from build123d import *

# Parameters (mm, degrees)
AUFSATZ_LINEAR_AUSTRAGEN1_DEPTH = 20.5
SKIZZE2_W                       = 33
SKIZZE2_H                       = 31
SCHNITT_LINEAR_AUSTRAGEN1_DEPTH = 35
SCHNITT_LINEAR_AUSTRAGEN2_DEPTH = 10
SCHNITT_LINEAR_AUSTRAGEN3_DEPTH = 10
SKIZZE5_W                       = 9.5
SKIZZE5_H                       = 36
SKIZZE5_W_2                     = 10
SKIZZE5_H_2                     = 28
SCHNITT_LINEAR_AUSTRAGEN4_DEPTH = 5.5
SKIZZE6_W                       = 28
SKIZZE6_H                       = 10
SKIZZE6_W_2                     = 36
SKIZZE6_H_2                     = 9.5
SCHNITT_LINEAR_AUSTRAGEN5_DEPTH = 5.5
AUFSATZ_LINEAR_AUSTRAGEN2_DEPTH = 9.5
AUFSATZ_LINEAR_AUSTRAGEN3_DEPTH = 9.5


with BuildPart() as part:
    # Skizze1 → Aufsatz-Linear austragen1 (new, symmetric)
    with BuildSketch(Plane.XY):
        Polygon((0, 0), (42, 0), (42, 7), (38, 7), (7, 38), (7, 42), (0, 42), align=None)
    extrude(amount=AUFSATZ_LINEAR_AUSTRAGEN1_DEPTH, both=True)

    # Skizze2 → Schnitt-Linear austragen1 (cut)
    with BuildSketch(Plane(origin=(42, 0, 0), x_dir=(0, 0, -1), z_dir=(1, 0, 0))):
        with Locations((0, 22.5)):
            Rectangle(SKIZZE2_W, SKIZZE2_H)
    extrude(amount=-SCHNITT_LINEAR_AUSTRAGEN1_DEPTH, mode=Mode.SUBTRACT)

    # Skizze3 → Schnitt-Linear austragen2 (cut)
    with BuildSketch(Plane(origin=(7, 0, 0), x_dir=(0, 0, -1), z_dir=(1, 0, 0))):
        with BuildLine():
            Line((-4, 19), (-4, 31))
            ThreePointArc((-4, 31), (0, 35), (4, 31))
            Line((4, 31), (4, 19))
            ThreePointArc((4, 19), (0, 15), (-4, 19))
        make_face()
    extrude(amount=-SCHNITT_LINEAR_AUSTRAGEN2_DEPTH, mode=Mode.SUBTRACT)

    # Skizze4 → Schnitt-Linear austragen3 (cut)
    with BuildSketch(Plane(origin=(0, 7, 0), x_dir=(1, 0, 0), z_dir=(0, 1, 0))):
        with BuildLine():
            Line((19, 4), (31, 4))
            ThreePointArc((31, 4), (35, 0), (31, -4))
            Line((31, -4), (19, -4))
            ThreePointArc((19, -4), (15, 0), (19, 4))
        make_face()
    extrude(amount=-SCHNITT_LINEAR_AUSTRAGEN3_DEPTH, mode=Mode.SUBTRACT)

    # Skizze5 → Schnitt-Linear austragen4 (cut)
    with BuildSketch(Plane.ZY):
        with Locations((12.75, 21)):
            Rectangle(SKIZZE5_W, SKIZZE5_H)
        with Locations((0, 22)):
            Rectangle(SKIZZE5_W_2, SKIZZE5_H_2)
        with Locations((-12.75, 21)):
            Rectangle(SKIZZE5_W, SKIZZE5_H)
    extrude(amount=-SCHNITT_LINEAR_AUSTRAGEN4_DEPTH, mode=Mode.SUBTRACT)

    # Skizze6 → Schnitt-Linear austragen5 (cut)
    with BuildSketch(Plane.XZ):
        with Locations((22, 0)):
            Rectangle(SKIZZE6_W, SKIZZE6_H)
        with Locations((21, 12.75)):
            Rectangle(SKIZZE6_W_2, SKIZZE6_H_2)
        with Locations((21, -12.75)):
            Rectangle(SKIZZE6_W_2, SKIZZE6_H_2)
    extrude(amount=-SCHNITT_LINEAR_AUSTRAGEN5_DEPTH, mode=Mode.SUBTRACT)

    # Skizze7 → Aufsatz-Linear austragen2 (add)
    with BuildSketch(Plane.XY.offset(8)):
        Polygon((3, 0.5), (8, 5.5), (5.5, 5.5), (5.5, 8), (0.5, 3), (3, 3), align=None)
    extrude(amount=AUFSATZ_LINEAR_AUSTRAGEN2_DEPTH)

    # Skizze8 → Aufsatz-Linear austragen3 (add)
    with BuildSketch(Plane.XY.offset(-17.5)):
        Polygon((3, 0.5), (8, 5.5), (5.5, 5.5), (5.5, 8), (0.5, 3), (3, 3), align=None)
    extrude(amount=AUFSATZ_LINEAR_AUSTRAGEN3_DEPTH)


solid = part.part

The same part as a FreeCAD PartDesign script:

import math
import FreeCAD as App
import Part
import Sketcher
from FreeCAD import Vector
Q = App.Units.Quantity


def add_polygon(sketch, points):
    """Adds a closed chain of lines whose ends are joined by coincident constraints."""
    first, n = sketch.GeometryCount, len(points)
    for a, b in zip(points, points[1:] + points[:1]):
        sketch.addGeometry(Part.LineSegment(App.Vector(*a, 0), App.Vector(*b, 0)), False)
    for i in range(n):
        sketch.addConstraint(Sketcher.Constraint("Coincident", first + i, 2, first + (i + 1) % n, 1))

doc = App.newDocument("Part")
body = doc.addObject("PartDesign::Body", "Body")

sketch1 = body.newObject("Sketcher::SketchObject", "Sketch")
sketch1.AttachmentSupport = (doc.getObject("XY_Plane"), [""])
sketch1.MapMode = "FlatFace"
add_polygon(sketch1, [(0, 0), (42, 0), (42, 7), (38, 7), (7, 38), (7, 42), (0, 42)])
sketch1.addConstraint(Sketcher.Constraint("Horizontal", 0))
sketch1.addConstraint(Sketcher.Constraint("Vertical", 1))
sketch1.addConstraint(Sketcher.Constraint("Horizontal", 2))
sketch1.addConstraint(Sketcher.Constraint("Vertical", 4))
sketch1.addConstraint(Sketcher.Constraint("Horizontal", 5))
sketch1.addConstraint(Sketcher.Constraint("Vertical", 6))
sketch1.addConstraint(Sketcher.Constraint("Coincident", 6, 2, -1, 1))
sketch1.addConstraint(Sketcher.Constraint("Equal", 5, 1))
sketch1.addConstraint(Sketcher.Constraint("Equal", 2, 4))
sketch1.addConstraint(Sketcher.Constraint("Equal", 0, 6))
sketch1.addConstraint(Sketcher.Constraint("DistanceX", 0, 1, 0, 2, 42.0))
sketch1.addConstraint(Sketcher.Constraint("DistanceX", 2, 2, 2, 1, 4.0))
sketch1.addConstraint(Sketcher.Constraint("DistanceX", 5, 2, 5, 1, 7.0))
pad1 = body.newObject("PartDesign::Pad", "Pad")
pad1.Profile = sketch1
pad1.Length = 41
pad1.Midplane = True

sketch2 = body.newObject("Sketcher::SketchObject", "Sketch001")
sketch2.AttachmentSupport = (doc.getObject("YZ_Plane"), [""])
sketch2.MapMode = "FlatFace"
sketch2.AttachmentOffset = App.Placement(Vector(0, 0, 42), App.Rotation())
add_polygon(sketch2, [(38, 16.5), (7, 16.5), (7, -16.5), (38, -16.5)])
sketch2.addConstraint(Sketcher.Constraint("Horizontal", 0))
sketch2.addConstraint(Sketcher.Constraint("Vertical", 1))
sketch2.addConstraint(Sketcher.Constraint("Horizontal", 2))
sketch2.addConstraint(Sketcher.Constraint("Vertical", 3))
sketch2.addConstraint(Sketcher.Constraint("DistanceX", 0, 2, 0, 1, 31.0))
sketch2.addConstraint(Sketcher.Constraint("DistanceY", 1, 2, 1, 1, 33.0))
sketch2.addConstraint(Sketcher.Constraint("DistanceX", -1, 1, 0, 2, 7.0))
sketch2.addConstraint(Sketcher.Constraint("DistanceY", -1, 1, 0, 2, 16.5))
pocket1 = body.newObject("PartDesign::Pocket", "Pocket")
pocket1.Profile = sketch2
pocket1.Length = 35

sketch3 = body.newObject("Sketcher::SketchObject", "Sketch002")
sketch3.AttachmentSupport = (doc.getObject("YZ_Plane"), [""])
sketch3.MapMode = "FlatFace"
sketch3.AttachmentOffset = App.Placement(Vector(0, 0, 7), App.Rotation())
sketch3.addGeometry(Part.LineSegment(Vector(31, 4, 0), Vector(19, 4, 0)), False)
sketch3.addGeometry(Part.ArcOfCircle(Part.Circle(Vector(19, 0, 0), Vector(0, 0, 1), 4), math.radians(90), math.radians(270)), False)
sketch3.addGeometry(Part.LineSegment(Vector(19, -4, 0), Vector(31, -4, 0)), False)
sketch3.addGeometry(Part.ArcOfCircle(Part.Circle(Vector(31, 0, 0), Vector(0, 0, 1), 4), math.radians(-90), math.radians(90)), False)
sketch3.addConstraint(Sketcher.Constraint("Tangent", 0, 2, 1, 1))
sketch3.addConstraint(Sketcher.Constraint("Tangent", 1, 2, 2, 1))
sketch3.addConstraint(Sketcher.Constraint("Tangent", 2, 2, 3, 1))
sketch3.addConstraint(Sketcher.Constraint("Tangent", 3, 2, 0, 1))
sketch3.addConstraint(Sketcher.Constraint("Horizontal", 0))
sketch3.addConstraint(Sketcher.Constraint("Horizontal", 2))
sketch3.addConstraint(Sketcher.Constraint("PointOnObject", 1, 3, -1))
sketch3.addConstraint(Sketcher.Constraint("Radius", 1, 4.0))
sketch3.addConstraint(Sketcher.Constraint("DistanceX", 0, 2, 0, 1, 12.0))
sketch3.addConstraint(Sketcher.Constraint("DistanceX", -1, 1, 1, 3, 19.0))
pocket2 = body.newObject("PartDesign::Pocket", "Pocket001")
pocket2.Profile = sketch3
pocket2.Length = 10

sketch4 = body.newObject("Sketcher::SketchObject", "Sketch003")
sketch4.AttachmentSupport = (doc.getObject("XZ_Plane"), [""])
sketch4.MapMode = "FlatFace"
sketch4.AttachmentOffset = App.Placement(Vector(0, 0, -7), App.Rotation())
sketch4.addGeometry(Part.LineSegment(Vector(31, -4, 0), Vector(19, -4, 0)), False)
sketch4.addGeometry(Part.ArcOfCircle(Part.Circle(Vector(19, 0, 0), Vector(0, 0, 1), 4), math.radians(90), math.radians(270)), False)
sketch4.addGeometry(Part.LineSegment(Vector(19, 4, 0), Vector(31, 4, 0)), False)
sketch4.addGeometry(Part.ArcOfCircle(Part.Circle(Vector(31, 0, 0), Vector(0, 0, 1), 4), math.radians(-90), math.radians(90)), False)
sketch4.addConstraint(Sketcher.Constraint("Tangent", 0, 2, 1, 2))
sketch4.addConstraint(Sketcher.Constraint("Tangent", 1, 1, 2, 1))
sketch4.addConstraint(Sketcher.Constraint("Tangent", 2, 2, 3, 2))
sketch4.addConstraint(Sketcher.Constraint("Tangent", 3, 1, 0, 1))
sketch4.addConstraint(Sketcher.Constraint("Horizontal", 0))
sketch4.addConstraint(Sketcher.Constraint("Horizontal", 2))
sketch4.addConstraint(Sketcher.Constraint("PointOnObject", 1, 3, -1))
sketch4.addConstraint(Sketcher.Constraint("Radius", 1, 4.0))
sketch4.addConstraint(Sketcher.Constraint("DistanceX", 0, 2, 0, 1, 12.0))
sketch4.addConstraint(Sketcher.Constraint("DistanceX", -1, 1, 1, 3, 19.0))
pocket3 = body.newObject("PartDesign::Pocket", "Pocket002")
pocket3.Profile = sketch4
pocket3.Length = 10
pocket3.Reversed = True

sketch5 = body.newObject("Sketcher::SketchObject", "Sketch004")
sketch5.AttachmentSupport = (doc.getObject("YZ_Plane"), [""])
sketch5.MapMode = "FlatFace"
add_polygon(sketch5, [(39, 8), (3, 8), (3, 17.5), (39, 17.5)])
add_polygon(sketch5, [(36, -5), (8, -5), (8, 5), (36, 5)])
add_polygon(sketch5, [(39, -17.5), (3, -17.5), (3, -8), (39, -8)])
sketch5.addConstraint(Sketcher.Constraint("Horizontal", 0))
sketch5.addConstraint(Sketcher.Constraint("Vertical", 1))
sketch5.addConstraint(Sketcher.Constraint("Horizontal", 2))
sketch5.addConstraint(Sketcher.Constraint("Vertical", 3))
sketch5.addConstraint(Sketcher.Constraint("Horizontal", 4))
sketch5.addConstraint(Sketcher.Constraint("Vertical", 5))
sketch5.addConstraint(Sketcher.Constraint("Horizontal", 6))
sketch5.addConstraint(Sketcher.Constraint("Vertical", 7))
sketch5.addConstraint(Sketcher.Constraint("Horizontal", 8))
sketch5.addConstraint(Sketcher.Constraint("Vertical", 9))
sketch5.addConstraint(Sketcher.Constraint("Horizontal", 10))
sketch5.addConstraint(Sketcher.Constraint("Vertical", 11))
sketch5.addConstraint(Sketcher.Constraint("Symmetric", 1, 2, 8, 2, -1))
sketch5.addConstraint(Sketcher.Constraint("Symmetric", 3, 2, 10, 2, -1))
sketch5.addConstraint(Sketcher.Constraint("DistanceX", 0, 2, 0, 1, 36.0))
sketch5.addConstraint(Sketcher.Constraint("DistanceX", 4, 2, 4, 1, 28.0))
sketch5.addConstraint(Sketcher.Constraint("DistanceY", 5, 1, 5, 2, 10.0))
sketch5.addConstraint(Sketcher.Constraint("DistanceY", 1, 1, 1, 2, 9.5))
sketch5.addConstraint(Sketcher.Constraint("DistanceX", -1, 1, 0, 2, 3.0))
sketch5.addConstraint(Sketcher.Constraint("DistanceY", -1, 1, 0, 2, 8.0))
sketch5.addConstraint(Sketcher.Constraint("DistanceX", -1, 1, 4, 2, 8.0))
sketch5.addConstraint(Sketcher.Constraint("DistanceY", 4, 2, -1, 1, 5.0))
pocket4 = body.newObject("PartDesign::Pocket", "Pocket003")
pocket4.Profile = sketch5
pocket4.Length = 5.5
pocket4.Reversed = True

sketch6 = body.newObject("Sketcher::SketchObject", "Sketch005")
sketch6.AttachmentSupport = (doc.getObject("XZ_Plane"), [""])
sketch6.MapMode = "FlatFace"
add_polygon(sketch6, [(8, 5), (8, -5), (36, -5), (36, 5)])
add_polygon(sketch6, [(3, 17.5), (3, 8), (39, 8), (39, 17.5)])
add_polygon(sketch6, [(3, -8), (3, -17.5), (39, -17.5), (39, -8)])
sketch6.addConstraint(Sketcher.Constraint("Vertical", 0))
sketch6.addConstraint(Sketcher.Constraint("Horizontal", 1))
sketch6.addConstraint(Sketcher.Constraint("Vertical", 2))
sketch6.addConstraint(Sketcher.Constraint("Horizontal", 3))
sketch6.addConstraint(Sketcher.Constraint("Vertical", 4))
sketch6.addConstraint(Sketcher.Constraint("Horizontal", 5))
sketch6.addConstraint(Sketcher.Constraint("Vertical", 6))
sketch6.addConstraint(Sketcher.Constraint("Horizontal", 7))
sketch6.addConstraint(Sketcher.Constraint("Vertical", 8))
sketch6.addConstraint(Sketcher.Constraint("Horizontal", 9))
sketch6.addConstraint(Sketcher.Constraint("Vertical", 10))
sketch6.addConstraint(Sketcher.Constraint("Horizontal", 11))
sketch6.addConstraint(Sketcher.Constraint("Symmetric", 7, 2, 8, 2, -1))
sketch6.addConstraint(Sketcher.Constraint("Symmetric", 5, 2, 10, 2, -1))
sketch6.addConstraint(Sketcher.Constraint("DistanceX", 1, 1, 1, 2, 28.0))
sketch6.addConstraint(Sketcher.Constraint("DistanceX", 5, 1, 5, 2, 36.0))
sketch6.addConstraint(Sketcher.Constraint("DistanceY", 0, 2, 0, 1, 10.0))
sketch6.addConstraint(Sketcher.Constraint("DistanceY", 4, 2, 4, 1, 9.5))
sketch6.addConstraint(Sketcher.Constraint("DistanceX", -1, 1, 0, 2, 8.0))
sketch6.addConstraint(Sketcher.Constraint("DistanceY", 0, 2, -1, 1, 5.0))
sketch6.addConstraint(Sketcher.Constraint("DistanceX", -1, 1, 4, 2, 3.0))
sketch6.addConstraint(Sketcher.Constraint("DistanceY", -1, 1, 4, 2, 8.0))
pocket5 = body.newObject("PartDesign::Pocket", "Pocket004")
pocket5.Profile = sketch6
pocket5.Length = 5.5

sketch7 = body.newObject("Sketcher::SketchObject", "Sketch006")
sketch7.AttachmentSupport = (doc.getObject("XY_Plane"), [""])
sketch7.MapMode = "FlatFace"
sketch7.AttachmentOffset = App.Placement(Vector(0, 0, 8), App.Rotation())
add_polygon(sketch7, [(3, 0.5), (8, 5.5), (5.5, 5.5), (5.5, 8), (0.5, 3), (3, 3)])
sketch7.addConstraint(Sketcher.Constraint("Horizontal", 1))
sketch7.addConstraint(Sketcher.Constraint("Vertical", 2))
sketch7.addConstraint(Sketcher.Constraint("Horizontal", 4))
sketch7.addConstraint(Sketcher.Constraint("Vertical", 5))
sketch7.addConstraint(Sketcher.Constraint("Parallel", 0, 3))
sketch7.addConstraint(Sketcher.Constraint("Equal", 1, 4))
sketch7.addConstraint(Sketcher.Constraint("Equal", 4, 2))
sketch7.addConstraint(Sketcher.Constraint("Angle", 0, Q("45 deg")))
sketch7.addConstraint(Sketcher.Constraint("DistanceX", 1, 2, 1, 1, 2.5))
sketch7.addConstraint(Sketcher.Constraint("DistanceX", -1, 1, 0, 2, 8.0))
sketch7.addConstraint(Sketcher.Constraint("DistanceY", -1, 1, 2, 2, 8.0))
sketch7.addConstraint(Sketcher.Constraint("DistanceY", -1, 1, 3, 2, 3.0))
pad2 = body.newObject("PartDesign::Pad", "Pad001")
pad2.Profile = sketch7
pad2.Length = 9.5

sketch8 = body.newObject("Sketcher::SketchObject", "Sketch007")
sketch8.AttachmentSupport = (doc.getObject("XY_Plane"), [""])
sketch8.MapMode = "FlatFace"
sketch8.AttachmentOffset = App.Placement(Vector(0, 0, -17.5), App.Rotation())
add_polygon(sketch8, [(3, 0.5), (8, 5.5), (5.5, 5.5), (5.5, 8), (0.5, 3), (3, 3)])
sketch8.addConstraint(Sketcher.Constraint("Horizontal", 1))
sketch8.addConstraint(Sketcher.Constraint("Vertical", 2))
sketch8.addConstraint(Sketcher.Constraint("Horizontal", 4))
sketch8.addConstraint(Sketcher.Constraint("Vertical", 5))
sketch8.addConstraint(Sketcher.Constraint("Parallel", 0, 3))
sketch8.addConstraint(Sketcher.Constraint("Equal", 1, 4))
sketch8.addConstraint(Sketcher.Constraint("Equal", 4, 2))
sketch8.addConstraint(Sketcher.Constraint("Angle", 0, Q("45 deg")))
sketch8.addConstraint(Sketcher.Constraint("DistanceX", 1, 2, 1, 1, 2.5))
sketch8.addConstraint(Sketcher.Constraint("DistanceX", -1, 1, 0, 2, 8.0))
sketch8.addConstraint(Sketcher.Constraint("DistanceY", -1, 1, 2, 2, 8.0))
sketch8.addConstraint(Sketcher.Constraint("DistanceY", -1, 1, 3, 2, 3.0))
pad3 = body.newObject("PartDesign::Pad", "Pad002")
pad3.Profile = sketch8
pad3.Length = 9.5

doc.recompute()
